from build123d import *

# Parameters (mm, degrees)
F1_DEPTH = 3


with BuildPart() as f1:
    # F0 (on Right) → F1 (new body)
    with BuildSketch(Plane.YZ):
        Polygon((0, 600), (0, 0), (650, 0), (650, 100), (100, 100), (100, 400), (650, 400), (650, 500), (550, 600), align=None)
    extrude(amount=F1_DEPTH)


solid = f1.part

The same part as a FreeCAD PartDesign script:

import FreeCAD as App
import Part
import Sketcher

V = App.Vector

doc = App.newDocument("Part")
params = doc.addObject("Spreadsheet::Sheet", "Params")
for row, (alias, value) in enumerate([
    ("sketch1_width", "650 mm"),
    ("sketch1_width2", "550 mm"),
    ("sketch1_height", "600 mm"),
    ("sketch1_height2", "100 mm"),
    ("sketch1_height3", "300 mm"),
    ("pad1_length", "3 mm"),
], start=1):
    params.set(f"A{row}", alias)
    params.set(f"B{row}", "=" + value)
    params.setAlias(f"B{row}", alias)

body = doc.addObject("PartDesign::Body", "Body")

# Sketch on YZ plane
sketch1 = body.newObject("Sketcher::SketchObject", "Sketch")
sketch1.AttachmentSupport = (doc.getObject("YZ_Plane"), [""])
sketch1.MapMode = "FlatFace"
sketch1.addGeometry([
    Part.LineSegment(V(0, 600, 0), V(0, 0, 0)),  # 0
    Part.LineSegment(V(0, 0, 0), V(650, 0, 0)),  # 1
    Part.LineSegment(V(650, 0, 0), V(650, 100, 0)),  # 2
    Part.LineSegment(V(650, 100, 0), V(100, 100, 0)),  # 3
    Part.LineSegment(V(100, 100, 0), V(100, 400, 0)),  # 4
    Part.LineSegment(V(100, 400, 0), V(650, 400, 0)),  # 5
    Part.LineSegment(V(650, 400, 0), V(650, 500, 0)),  # 6
    Part.LineSegment(V(650, 500, 0), V(550, 600, 0)),  # 7
    Part.LineSegment(V(550, 600, 0), V(0, 600, 0)),  # 8
], False)
sketch1.addConstraint([
    Sketcher.Constraint("Coincident", 0, 2, 1, 1),
    Sketcher.Constraint("Coincident", 1, 2, 2, 1),
    Sketcher.Constraint("Coincident", 2, 2, 3, 1),
    Sketcher.Constraint("Coincident", 3, 2, 4, 1),
    Sketcher.Constraint("Coincident", 4, 2, 5, 1),
    Sketcher.Constraint("Coincident", 5, 2, 6, 1),
    Sketcher.Constraint("Coincident", 6, 2, 7, 1),
    Sketcher.Constraint("Coincident", 7, 2, 8, 1),
    Sketcher.Constraint("Coincident", 8, 2, 0, 1),
    Sketcher.Constraint("Vertical", 0),
    Sketcher.Constraint("Horizontal", 1),
    Sketcher.Constraint("Vertical", 2),
    Sketcher.Constraint("Horizontal", 3),
    Sketcher.Constraint("Vertical", 4),
    Sketcher.Constraint("Horizontal", 5),
    Sketcher.Constraint("Vertical", 6),
    Sketcher.Constraint("Horizontal", 8),
    Sketcher.Constraint("Coincident", 0, 2, -1, 1),
    Sketcher.Constraint("Vertical", 2, 2, 5, 2),
    Sketcher.Constraint("Equal", 5, 8),
    Sketcher.Constraint("Equal", 2, 6),
    Sketcher.Constraint("DistanceX", 1, 1, 1, 2, 650.0),
    Sketcher.Constraint("DistanceX", 3, 2, 3, 1, 550.0),
    Sketcher.Constraint("DistanceY", 0, 2, 0, 1, 600.0),
    Sketcher.Constraint("DistanceY", 2, 1, 2, 2, 100.0),
    Sketcher.Constraint("DistanceY", 4, 1, 4, 2, 300.0),
])
sketch1.setExpression("Constraints[21]", "Params.sketch1_width")
sketch1.setExpression("Constraints[22]", "Params.sketch1_width2")
sketch1.setExpression("Constraints[23]", "Params.sketch1_height")
sketch1.setExpression("Constraints[24]", "Params.sketch1_height2")
sketch1.setExpression("Constraints[25]", "Params.sketch1_height3")
pad1 = body.newObject("PartDesign::Pad", "Pad")
pad1.Profile = sketch1
pad1.setExpression("Length", "Params.pad1_length")

doc.recompute()
